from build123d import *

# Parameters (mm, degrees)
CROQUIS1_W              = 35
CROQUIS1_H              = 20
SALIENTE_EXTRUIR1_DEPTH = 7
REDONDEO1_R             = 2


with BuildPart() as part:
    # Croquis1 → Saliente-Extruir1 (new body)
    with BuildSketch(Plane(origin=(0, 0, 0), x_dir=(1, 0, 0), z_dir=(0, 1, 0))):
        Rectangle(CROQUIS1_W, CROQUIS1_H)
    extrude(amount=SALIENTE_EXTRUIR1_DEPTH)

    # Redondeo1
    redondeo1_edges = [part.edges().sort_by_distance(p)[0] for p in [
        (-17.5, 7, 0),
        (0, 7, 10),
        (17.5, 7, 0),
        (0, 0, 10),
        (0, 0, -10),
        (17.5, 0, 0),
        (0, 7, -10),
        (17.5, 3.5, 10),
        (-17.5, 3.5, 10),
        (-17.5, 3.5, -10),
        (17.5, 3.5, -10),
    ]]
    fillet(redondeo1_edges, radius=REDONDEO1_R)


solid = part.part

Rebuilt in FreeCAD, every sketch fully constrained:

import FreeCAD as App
import Part
import Sketcher
from FreeCAD import Vector
Q = App.Units.Quantity


def edges_at(feature, points):
    """Names of the edges that pass closest to the given points."""
    edges = feature.Shape.Edges
    near = lambda p: min(range(len(edges)), key=lambda i: edges[i].distToShape(Part.Vertex(*p))[0])
    return sorted({f"Edge{near(p) + 1}" for p in points})


def add_polygon(sketch, points):
    """Adds a closed chain of lines whose ends are joined by coincident constraints."""
    first, n = sketch.GeometryCount, len(points)
    for a, b in zip(points, points[1:] + points[:1]):
        sketch.addGeometry(Part.LineSegment(App.Vector(*a, 0), App.Vector(*b, 0)), False)
    for i in range(n):
        sketch.addConstraint(Sketcher.Constraint("Coincident", first + i, 2, first + (i + 1) % n, 1))

doc = App.newDocument("Part")
params = doc.addObject("Spreadsheet::Sheet", "Params")
for row, (alias, value) in enumerate([
    ("sketch1_width", "35 mm"),
    ("sketch1_height", "20 mm"),
    ("pad1_length", "7 mm"),
    ("fillet_radius", "2 mm"),
], start=1):
    params.set(f"A{row}", alias)
    params.set(f"B{row}", "=" + value)
    params.setAlias(f"B{row}", alias)

body = doc.addObject("PartDesign::Body", "Body")

# Sketch on XZ plane
sketch1 = body.newObject("Sketcher::SketchObject", "Sketch")
sketch1.AttachmentSupport = (doc.getObject("XZ_Plane"), [""])
sketch1.MapMode = "FlatFace"
add_polygon(sketch1, [(-18, -10), (-18, 10), (18, 10), (18, -10)])  # lines 0-3
sketch1.addConstraint([
    Sketcher.Constraint("Vertical", 0),
    Sketcher.Constraint("Horizontal", 1),
    Sketcher.Constraint("Vertical", 2),
    Sketcher.Constraint("Horizontal", 3),
    Sketcher.Constraint("Symmetric", 0, 2, 2, 2, -1, 1),
    Sketcher.Constraint("DistanceX", 1, 1, 1, 2, Q("35 mm")),
    Sketcher.Constraint("DistanceY", 0, 1, 0, 2, Q("20 mm")),
])
sketch1.setExpression("Constraints[9]", "Params.sketch1_width")
sketch1.setExpression("Constraints[10]", "Params.sketch1_height")
pad1 = body.newObject("PartDesign::Pad", "Pad")
pad1.Profile = sketch1
pad1.setExpression("Length", "Params.pad1_length")
pad1.Reversed = True
doc.recompute()

fillet = body.newObject("PartDesign::Fillet", "Fillet")
fillet.Base = (pad1, edges_at(pad1, [
    (-17.5, 7, 0),
    (0, 7, 10),
    (17.5, 7, 0),
    (0, 0, 10),
    (0, 0, -10),
    (17.5, 0, 0),
    (0, 7, -10),
    (17.5, 3.5, 10),
    (-17.5, 3.5, 10),
    (-17.5, 3.5, -10),
    (17.5, 3.5, -10),
]))
fillet.setExpression("Radius", "Params.fillet_radius")

doc.recompute()
